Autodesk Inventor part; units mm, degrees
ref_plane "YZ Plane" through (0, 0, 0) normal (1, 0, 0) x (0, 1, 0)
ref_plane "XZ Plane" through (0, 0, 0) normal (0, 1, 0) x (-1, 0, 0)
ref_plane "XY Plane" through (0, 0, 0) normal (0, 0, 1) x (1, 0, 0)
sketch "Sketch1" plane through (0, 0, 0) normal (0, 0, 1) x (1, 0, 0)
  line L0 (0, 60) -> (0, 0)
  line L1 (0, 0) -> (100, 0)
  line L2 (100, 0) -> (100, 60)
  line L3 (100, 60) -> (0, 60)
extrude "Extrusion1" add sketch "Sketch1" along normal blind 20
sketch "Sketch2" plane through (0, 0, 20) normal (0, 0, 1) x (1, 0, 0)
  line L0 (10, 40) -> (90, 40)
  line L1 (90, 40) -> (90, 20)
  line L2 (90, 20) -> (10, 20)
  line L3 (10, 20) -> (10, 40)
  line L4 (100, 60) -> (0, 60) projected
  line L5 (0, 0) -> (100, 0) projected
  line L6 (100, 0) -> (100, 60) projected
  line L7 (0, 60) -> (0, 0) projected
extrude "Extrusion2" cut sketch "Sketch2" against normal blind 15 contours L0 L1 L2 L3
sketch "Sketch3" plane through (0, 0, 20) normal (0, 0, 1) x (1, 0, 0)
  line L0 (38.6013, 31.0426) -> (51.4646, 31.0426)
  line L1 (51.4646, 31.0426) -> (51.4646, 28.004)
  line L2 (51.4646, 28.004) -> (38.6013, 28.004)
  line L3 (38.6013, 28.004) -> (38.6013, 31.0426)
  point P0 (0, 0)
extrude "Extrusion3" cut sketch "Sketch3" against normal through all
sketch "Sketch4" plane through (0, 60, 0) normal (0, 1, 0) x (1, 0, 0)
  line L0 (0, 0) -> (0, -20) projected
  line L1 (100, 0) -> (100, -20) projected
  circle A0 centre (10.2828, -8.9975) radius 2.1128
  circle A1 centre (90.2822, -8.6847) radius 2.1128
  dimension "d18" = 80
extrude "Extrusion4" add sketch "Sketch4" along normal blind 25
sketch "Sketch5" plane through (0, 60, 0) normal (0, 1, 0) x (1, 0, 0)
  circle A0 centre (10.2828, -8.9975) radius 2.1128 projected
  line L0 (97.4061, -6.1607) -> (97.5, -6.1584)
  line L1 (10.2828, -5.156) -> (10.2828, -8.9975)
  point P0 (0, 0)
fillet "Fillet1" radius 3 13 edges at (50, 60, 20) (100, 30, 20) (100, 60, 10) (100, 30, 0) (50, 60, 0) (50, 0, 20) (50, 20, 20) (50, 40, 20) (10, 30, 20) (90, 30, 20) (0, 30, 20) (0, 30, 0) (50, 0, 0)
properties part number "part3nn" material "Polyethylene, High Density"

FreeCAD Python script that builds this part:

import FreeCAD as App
import Part
import Sketcher
from FreeCAD import Vector


def edges_at(feature, points):
    """Names of the edges that pass closest to the given points."""
    edges = feature.Shape.Edges
    near = lambda p: min(range(len(edges)), key=lambda i: edges[i].distToShape(Part.Vertex(*p))[0])
    return sorted({f"Edge{near(p) + 1}" for p in points})

doc = App.newDocument("Part")
body = doc.addObject("PartDesign::Body", "Body")

# Sketch on XY plane
sketch1 = body.newObject("Sketcher::SketchObject", "Sketch")
sketch1.AttachmentSupport = (doc.getObject("XY_Plane"), [""])
sketch1.MapMode = "FlatFace"
sketch1.addGeometry([
    Part.LineSegment(Vector(100, 60, 0), Vector(0, 60, 0)),
    Part.LineSegment(Vector(0, 60, 0), Vector(0, 0, 0)),
    Part.LineSegment(Vector(0, 0, 0), Vector(100, 0, 0)),
    Part.LineSegment(Vector(100, 0, 0), Vector(100, 60, 0)),
], False)
sketch1.addConstraint([
    Sketcher.Constraint("Coincident", 0, 2, 1, 1),
    Sketcher.Constraint("Coincident", 1, 2, 2, 1),
    Sketcher.Constraint("Coincident", 2, 2, 3, 1),
    Sketcher.Constraint("Coincident", 3, 2, 0, 1),
    Sketcher.Constraint("Horizontal", 0),
    Sketcher.Constraint("Vertical", 1),
    Sketcher.Constraint("Horizontal", 2),
    Sketcher.Constraint("Vertical", 3),
    Sketcher.Constraint("Coincident", 1, 2, -1, 1),
    Sketcher.Constraint("DistanceX", 0, 2, 0, 1, 100.0),
    Sketcher.Constraint("DistanceY", 1, 2, 1, 1, 60.0),
])
pad1 = body.newObject("PartDesign::Pad", "Pad")
pad1.Profile = sketch1
pad1.Length = 20

# Sketch on XY plane
sketch2 = body.newObject("Sketcher::SketchObject", "Sketch001")
sketch2.AttachmentSupport = (doc.getObject("XY_Plane"), [""])
sketch2.MapMode = "FlatFace"
sketch2.AttachmentOffset = App.Placement(Vector(0, 0, 20), App.Rotation())
sketch2.addGeometry([
    Part.LineSegment(Vector(90, 40, 0), Vector(10, 40, 0)),
    Part.LineSegment(Vector(10, 40, 0), Vector(10, 20, 0)),
    Part.LineSegment(Vector(10, 20, 0), Vector(90, 20, 0)),
    Part.LineSegment(Vector(90, 20, 0), Vector(90, 40, 0)),
], False)
sketch2.addConstraint([
    Sketcher.Constraint("Coincident", 0, 2, 1, 1),
    Sketcher.Constraint("Coincident", 1, 2, 2, 1),
    Sketcher.Constraint("Coincident", 2, 2, 3, 1),
    Sketcher.Constraint("Coincident", 3, 2, 0, 1),
    Sketcher.Constraint("Horizontal", 0),
    Sketcher.Constraint("Vertical", 1),
    Sketcher.Constraint("Horizontal", 2),
    Sketcher.Constraint("Vertical", 3),
    Sketcher.Constraint("DistanceX", 0, 2, 0, 1, 80.0),
    Sketcher.Constraint("DistanceY", 1, 2, 1, 1, 20.0),
    Sketcher.Constraint("DistanceX", -1, 1, 0, 2, 10.0),
    Sketcher.Constraint("DistanceY", -1, 1, 0, 2, 40.0),
])
pocket1 = body.newObject("PartDesign::Pocket", "Pocket")
pocket1.Profile = sketch2
pocket1.Length = 15

# Sketch on XY plane
sketch3 = body.newObject("Sketcher::SketchObject", "Sketch002")
sketch3.AttachmentSupport = (doc.getObject("XY_Plane"), [""])
sketch3.MapMode = "FlatFace"
sketch3.AttachmentOffset = App.Placement(Vector(0, 0, 20), App.Rotation())
sketch3.addGeometry([
    Part.LineSegment(Vector(51.5, 31, 0), Vector(38.6, 31, 0)),
    Part.LineSegment(Vector(38.6, 31, 0), Vector(38.6, 28, 0)),
    Part.LineSegment(Vector(38.6, 28, 0), Vector(51.5, 28, 0)),
    Part.LineSegment(Vector(51.5, 28, 0), Vector(51.5, 31, 0)),
], False)
sketch3.addConstraint([
    Sketcher.Constraint("Coincident", 0, 2, 1, 1),
    Sketcher.Constraint("Coincident", 1, 2, 2, 1),
    Sketcher.Constraint("Coincident", 2, 2, 3, 1),
    Sketcher.Constraint("Coincident", 3, 2, 0, 1),
    Sketcher.Constraint("Horizontal", 0),
    Sketcher.Constraint("Vertical", 1),
    Sketcher.Constraint("Horizontal", 2),
    Sketcher.Constraint("Vertical", 3),
    Sketcher.Constraint("DistanceX", 0, 2, 0, 1, 12.8633),
    Sketcher.Constraint("DistanceY", 1, 2, 1, 1, 3.0386),
    Sketcher.Constraint("DistanceY", -1, 1, 1, 2, 28.004),
    Sketcher.Constraint("DistanceX", -1, 1, 0, 2, 38.6013),
])
pocket2 = body.newObject("PartDesign::Pocket", "Pocket001")
pocket2.Profile = sketch3
pocket2.Type = "ThroughAll"

# Sketch on XZ plane
sketch4 = body.newObject("Sketcher::SketchObject", "Sketch003")
sketch4.AttachmentSupport = (doc.getObject("XZ_Plane"), [""])
sketch4.MapMode = "FlatFace"
sketch4.AttachmentOffset = App.Placement(Vector(0, 0, -60), App.Rotation())
sketch4.addGeometry([
    Part.Circle(Vector(10.3, 9, 0), Vector(0, 0, 1), 2.1),
    Part.Circle(Vector(90.3, 8.7, 0), Vector(0, 0, 1), 2.1),
], False)
sketch4.addConstraint([
    Sketcher.Constraint("Equal", 0, 1),
    Sketcher.Constraint("Diameter", 0, 4.2256),
    Sketcher.Constraint("DistanceX", 0, 3, 1, 3, 79.9994),
    Sketcher.Constraint("DistanceX", -1, 1, 0, 3, 10.2828),
    Sketcher.Constraint("DistanceY", -1, 1, 0, 3, 8.9975),
    Sketcher.Constraint("DistanceY", -1, 1, 1, 3, 8.6847),
])
pad2 = body.newObject("PartDesign::Pad", "Pad001")
pad2.Profile = sketch4
pad2.Length = 25
pad2.Reversed = True
doc.recompute()

fillet = body.newObject("PartDesign::Fillet", "Fillet")
fillet.Base = (pad2, edges_at(pad2, [
    (50, 60, 20),
    (100, 30, 20),
    (100, 60, 10),
    (100, 30, 0),
    (50, 60, 0),
    (50, 0, 20),
    (50, 20, 20),
    (50, 40, 20),
    (10, 30, 20),
    (90, 30, 20),
    (0, 30, 20),
    (0, 30, 0),
    (50, 0, 0),
]))
fillet.Radius = 3

doc.recompute()
